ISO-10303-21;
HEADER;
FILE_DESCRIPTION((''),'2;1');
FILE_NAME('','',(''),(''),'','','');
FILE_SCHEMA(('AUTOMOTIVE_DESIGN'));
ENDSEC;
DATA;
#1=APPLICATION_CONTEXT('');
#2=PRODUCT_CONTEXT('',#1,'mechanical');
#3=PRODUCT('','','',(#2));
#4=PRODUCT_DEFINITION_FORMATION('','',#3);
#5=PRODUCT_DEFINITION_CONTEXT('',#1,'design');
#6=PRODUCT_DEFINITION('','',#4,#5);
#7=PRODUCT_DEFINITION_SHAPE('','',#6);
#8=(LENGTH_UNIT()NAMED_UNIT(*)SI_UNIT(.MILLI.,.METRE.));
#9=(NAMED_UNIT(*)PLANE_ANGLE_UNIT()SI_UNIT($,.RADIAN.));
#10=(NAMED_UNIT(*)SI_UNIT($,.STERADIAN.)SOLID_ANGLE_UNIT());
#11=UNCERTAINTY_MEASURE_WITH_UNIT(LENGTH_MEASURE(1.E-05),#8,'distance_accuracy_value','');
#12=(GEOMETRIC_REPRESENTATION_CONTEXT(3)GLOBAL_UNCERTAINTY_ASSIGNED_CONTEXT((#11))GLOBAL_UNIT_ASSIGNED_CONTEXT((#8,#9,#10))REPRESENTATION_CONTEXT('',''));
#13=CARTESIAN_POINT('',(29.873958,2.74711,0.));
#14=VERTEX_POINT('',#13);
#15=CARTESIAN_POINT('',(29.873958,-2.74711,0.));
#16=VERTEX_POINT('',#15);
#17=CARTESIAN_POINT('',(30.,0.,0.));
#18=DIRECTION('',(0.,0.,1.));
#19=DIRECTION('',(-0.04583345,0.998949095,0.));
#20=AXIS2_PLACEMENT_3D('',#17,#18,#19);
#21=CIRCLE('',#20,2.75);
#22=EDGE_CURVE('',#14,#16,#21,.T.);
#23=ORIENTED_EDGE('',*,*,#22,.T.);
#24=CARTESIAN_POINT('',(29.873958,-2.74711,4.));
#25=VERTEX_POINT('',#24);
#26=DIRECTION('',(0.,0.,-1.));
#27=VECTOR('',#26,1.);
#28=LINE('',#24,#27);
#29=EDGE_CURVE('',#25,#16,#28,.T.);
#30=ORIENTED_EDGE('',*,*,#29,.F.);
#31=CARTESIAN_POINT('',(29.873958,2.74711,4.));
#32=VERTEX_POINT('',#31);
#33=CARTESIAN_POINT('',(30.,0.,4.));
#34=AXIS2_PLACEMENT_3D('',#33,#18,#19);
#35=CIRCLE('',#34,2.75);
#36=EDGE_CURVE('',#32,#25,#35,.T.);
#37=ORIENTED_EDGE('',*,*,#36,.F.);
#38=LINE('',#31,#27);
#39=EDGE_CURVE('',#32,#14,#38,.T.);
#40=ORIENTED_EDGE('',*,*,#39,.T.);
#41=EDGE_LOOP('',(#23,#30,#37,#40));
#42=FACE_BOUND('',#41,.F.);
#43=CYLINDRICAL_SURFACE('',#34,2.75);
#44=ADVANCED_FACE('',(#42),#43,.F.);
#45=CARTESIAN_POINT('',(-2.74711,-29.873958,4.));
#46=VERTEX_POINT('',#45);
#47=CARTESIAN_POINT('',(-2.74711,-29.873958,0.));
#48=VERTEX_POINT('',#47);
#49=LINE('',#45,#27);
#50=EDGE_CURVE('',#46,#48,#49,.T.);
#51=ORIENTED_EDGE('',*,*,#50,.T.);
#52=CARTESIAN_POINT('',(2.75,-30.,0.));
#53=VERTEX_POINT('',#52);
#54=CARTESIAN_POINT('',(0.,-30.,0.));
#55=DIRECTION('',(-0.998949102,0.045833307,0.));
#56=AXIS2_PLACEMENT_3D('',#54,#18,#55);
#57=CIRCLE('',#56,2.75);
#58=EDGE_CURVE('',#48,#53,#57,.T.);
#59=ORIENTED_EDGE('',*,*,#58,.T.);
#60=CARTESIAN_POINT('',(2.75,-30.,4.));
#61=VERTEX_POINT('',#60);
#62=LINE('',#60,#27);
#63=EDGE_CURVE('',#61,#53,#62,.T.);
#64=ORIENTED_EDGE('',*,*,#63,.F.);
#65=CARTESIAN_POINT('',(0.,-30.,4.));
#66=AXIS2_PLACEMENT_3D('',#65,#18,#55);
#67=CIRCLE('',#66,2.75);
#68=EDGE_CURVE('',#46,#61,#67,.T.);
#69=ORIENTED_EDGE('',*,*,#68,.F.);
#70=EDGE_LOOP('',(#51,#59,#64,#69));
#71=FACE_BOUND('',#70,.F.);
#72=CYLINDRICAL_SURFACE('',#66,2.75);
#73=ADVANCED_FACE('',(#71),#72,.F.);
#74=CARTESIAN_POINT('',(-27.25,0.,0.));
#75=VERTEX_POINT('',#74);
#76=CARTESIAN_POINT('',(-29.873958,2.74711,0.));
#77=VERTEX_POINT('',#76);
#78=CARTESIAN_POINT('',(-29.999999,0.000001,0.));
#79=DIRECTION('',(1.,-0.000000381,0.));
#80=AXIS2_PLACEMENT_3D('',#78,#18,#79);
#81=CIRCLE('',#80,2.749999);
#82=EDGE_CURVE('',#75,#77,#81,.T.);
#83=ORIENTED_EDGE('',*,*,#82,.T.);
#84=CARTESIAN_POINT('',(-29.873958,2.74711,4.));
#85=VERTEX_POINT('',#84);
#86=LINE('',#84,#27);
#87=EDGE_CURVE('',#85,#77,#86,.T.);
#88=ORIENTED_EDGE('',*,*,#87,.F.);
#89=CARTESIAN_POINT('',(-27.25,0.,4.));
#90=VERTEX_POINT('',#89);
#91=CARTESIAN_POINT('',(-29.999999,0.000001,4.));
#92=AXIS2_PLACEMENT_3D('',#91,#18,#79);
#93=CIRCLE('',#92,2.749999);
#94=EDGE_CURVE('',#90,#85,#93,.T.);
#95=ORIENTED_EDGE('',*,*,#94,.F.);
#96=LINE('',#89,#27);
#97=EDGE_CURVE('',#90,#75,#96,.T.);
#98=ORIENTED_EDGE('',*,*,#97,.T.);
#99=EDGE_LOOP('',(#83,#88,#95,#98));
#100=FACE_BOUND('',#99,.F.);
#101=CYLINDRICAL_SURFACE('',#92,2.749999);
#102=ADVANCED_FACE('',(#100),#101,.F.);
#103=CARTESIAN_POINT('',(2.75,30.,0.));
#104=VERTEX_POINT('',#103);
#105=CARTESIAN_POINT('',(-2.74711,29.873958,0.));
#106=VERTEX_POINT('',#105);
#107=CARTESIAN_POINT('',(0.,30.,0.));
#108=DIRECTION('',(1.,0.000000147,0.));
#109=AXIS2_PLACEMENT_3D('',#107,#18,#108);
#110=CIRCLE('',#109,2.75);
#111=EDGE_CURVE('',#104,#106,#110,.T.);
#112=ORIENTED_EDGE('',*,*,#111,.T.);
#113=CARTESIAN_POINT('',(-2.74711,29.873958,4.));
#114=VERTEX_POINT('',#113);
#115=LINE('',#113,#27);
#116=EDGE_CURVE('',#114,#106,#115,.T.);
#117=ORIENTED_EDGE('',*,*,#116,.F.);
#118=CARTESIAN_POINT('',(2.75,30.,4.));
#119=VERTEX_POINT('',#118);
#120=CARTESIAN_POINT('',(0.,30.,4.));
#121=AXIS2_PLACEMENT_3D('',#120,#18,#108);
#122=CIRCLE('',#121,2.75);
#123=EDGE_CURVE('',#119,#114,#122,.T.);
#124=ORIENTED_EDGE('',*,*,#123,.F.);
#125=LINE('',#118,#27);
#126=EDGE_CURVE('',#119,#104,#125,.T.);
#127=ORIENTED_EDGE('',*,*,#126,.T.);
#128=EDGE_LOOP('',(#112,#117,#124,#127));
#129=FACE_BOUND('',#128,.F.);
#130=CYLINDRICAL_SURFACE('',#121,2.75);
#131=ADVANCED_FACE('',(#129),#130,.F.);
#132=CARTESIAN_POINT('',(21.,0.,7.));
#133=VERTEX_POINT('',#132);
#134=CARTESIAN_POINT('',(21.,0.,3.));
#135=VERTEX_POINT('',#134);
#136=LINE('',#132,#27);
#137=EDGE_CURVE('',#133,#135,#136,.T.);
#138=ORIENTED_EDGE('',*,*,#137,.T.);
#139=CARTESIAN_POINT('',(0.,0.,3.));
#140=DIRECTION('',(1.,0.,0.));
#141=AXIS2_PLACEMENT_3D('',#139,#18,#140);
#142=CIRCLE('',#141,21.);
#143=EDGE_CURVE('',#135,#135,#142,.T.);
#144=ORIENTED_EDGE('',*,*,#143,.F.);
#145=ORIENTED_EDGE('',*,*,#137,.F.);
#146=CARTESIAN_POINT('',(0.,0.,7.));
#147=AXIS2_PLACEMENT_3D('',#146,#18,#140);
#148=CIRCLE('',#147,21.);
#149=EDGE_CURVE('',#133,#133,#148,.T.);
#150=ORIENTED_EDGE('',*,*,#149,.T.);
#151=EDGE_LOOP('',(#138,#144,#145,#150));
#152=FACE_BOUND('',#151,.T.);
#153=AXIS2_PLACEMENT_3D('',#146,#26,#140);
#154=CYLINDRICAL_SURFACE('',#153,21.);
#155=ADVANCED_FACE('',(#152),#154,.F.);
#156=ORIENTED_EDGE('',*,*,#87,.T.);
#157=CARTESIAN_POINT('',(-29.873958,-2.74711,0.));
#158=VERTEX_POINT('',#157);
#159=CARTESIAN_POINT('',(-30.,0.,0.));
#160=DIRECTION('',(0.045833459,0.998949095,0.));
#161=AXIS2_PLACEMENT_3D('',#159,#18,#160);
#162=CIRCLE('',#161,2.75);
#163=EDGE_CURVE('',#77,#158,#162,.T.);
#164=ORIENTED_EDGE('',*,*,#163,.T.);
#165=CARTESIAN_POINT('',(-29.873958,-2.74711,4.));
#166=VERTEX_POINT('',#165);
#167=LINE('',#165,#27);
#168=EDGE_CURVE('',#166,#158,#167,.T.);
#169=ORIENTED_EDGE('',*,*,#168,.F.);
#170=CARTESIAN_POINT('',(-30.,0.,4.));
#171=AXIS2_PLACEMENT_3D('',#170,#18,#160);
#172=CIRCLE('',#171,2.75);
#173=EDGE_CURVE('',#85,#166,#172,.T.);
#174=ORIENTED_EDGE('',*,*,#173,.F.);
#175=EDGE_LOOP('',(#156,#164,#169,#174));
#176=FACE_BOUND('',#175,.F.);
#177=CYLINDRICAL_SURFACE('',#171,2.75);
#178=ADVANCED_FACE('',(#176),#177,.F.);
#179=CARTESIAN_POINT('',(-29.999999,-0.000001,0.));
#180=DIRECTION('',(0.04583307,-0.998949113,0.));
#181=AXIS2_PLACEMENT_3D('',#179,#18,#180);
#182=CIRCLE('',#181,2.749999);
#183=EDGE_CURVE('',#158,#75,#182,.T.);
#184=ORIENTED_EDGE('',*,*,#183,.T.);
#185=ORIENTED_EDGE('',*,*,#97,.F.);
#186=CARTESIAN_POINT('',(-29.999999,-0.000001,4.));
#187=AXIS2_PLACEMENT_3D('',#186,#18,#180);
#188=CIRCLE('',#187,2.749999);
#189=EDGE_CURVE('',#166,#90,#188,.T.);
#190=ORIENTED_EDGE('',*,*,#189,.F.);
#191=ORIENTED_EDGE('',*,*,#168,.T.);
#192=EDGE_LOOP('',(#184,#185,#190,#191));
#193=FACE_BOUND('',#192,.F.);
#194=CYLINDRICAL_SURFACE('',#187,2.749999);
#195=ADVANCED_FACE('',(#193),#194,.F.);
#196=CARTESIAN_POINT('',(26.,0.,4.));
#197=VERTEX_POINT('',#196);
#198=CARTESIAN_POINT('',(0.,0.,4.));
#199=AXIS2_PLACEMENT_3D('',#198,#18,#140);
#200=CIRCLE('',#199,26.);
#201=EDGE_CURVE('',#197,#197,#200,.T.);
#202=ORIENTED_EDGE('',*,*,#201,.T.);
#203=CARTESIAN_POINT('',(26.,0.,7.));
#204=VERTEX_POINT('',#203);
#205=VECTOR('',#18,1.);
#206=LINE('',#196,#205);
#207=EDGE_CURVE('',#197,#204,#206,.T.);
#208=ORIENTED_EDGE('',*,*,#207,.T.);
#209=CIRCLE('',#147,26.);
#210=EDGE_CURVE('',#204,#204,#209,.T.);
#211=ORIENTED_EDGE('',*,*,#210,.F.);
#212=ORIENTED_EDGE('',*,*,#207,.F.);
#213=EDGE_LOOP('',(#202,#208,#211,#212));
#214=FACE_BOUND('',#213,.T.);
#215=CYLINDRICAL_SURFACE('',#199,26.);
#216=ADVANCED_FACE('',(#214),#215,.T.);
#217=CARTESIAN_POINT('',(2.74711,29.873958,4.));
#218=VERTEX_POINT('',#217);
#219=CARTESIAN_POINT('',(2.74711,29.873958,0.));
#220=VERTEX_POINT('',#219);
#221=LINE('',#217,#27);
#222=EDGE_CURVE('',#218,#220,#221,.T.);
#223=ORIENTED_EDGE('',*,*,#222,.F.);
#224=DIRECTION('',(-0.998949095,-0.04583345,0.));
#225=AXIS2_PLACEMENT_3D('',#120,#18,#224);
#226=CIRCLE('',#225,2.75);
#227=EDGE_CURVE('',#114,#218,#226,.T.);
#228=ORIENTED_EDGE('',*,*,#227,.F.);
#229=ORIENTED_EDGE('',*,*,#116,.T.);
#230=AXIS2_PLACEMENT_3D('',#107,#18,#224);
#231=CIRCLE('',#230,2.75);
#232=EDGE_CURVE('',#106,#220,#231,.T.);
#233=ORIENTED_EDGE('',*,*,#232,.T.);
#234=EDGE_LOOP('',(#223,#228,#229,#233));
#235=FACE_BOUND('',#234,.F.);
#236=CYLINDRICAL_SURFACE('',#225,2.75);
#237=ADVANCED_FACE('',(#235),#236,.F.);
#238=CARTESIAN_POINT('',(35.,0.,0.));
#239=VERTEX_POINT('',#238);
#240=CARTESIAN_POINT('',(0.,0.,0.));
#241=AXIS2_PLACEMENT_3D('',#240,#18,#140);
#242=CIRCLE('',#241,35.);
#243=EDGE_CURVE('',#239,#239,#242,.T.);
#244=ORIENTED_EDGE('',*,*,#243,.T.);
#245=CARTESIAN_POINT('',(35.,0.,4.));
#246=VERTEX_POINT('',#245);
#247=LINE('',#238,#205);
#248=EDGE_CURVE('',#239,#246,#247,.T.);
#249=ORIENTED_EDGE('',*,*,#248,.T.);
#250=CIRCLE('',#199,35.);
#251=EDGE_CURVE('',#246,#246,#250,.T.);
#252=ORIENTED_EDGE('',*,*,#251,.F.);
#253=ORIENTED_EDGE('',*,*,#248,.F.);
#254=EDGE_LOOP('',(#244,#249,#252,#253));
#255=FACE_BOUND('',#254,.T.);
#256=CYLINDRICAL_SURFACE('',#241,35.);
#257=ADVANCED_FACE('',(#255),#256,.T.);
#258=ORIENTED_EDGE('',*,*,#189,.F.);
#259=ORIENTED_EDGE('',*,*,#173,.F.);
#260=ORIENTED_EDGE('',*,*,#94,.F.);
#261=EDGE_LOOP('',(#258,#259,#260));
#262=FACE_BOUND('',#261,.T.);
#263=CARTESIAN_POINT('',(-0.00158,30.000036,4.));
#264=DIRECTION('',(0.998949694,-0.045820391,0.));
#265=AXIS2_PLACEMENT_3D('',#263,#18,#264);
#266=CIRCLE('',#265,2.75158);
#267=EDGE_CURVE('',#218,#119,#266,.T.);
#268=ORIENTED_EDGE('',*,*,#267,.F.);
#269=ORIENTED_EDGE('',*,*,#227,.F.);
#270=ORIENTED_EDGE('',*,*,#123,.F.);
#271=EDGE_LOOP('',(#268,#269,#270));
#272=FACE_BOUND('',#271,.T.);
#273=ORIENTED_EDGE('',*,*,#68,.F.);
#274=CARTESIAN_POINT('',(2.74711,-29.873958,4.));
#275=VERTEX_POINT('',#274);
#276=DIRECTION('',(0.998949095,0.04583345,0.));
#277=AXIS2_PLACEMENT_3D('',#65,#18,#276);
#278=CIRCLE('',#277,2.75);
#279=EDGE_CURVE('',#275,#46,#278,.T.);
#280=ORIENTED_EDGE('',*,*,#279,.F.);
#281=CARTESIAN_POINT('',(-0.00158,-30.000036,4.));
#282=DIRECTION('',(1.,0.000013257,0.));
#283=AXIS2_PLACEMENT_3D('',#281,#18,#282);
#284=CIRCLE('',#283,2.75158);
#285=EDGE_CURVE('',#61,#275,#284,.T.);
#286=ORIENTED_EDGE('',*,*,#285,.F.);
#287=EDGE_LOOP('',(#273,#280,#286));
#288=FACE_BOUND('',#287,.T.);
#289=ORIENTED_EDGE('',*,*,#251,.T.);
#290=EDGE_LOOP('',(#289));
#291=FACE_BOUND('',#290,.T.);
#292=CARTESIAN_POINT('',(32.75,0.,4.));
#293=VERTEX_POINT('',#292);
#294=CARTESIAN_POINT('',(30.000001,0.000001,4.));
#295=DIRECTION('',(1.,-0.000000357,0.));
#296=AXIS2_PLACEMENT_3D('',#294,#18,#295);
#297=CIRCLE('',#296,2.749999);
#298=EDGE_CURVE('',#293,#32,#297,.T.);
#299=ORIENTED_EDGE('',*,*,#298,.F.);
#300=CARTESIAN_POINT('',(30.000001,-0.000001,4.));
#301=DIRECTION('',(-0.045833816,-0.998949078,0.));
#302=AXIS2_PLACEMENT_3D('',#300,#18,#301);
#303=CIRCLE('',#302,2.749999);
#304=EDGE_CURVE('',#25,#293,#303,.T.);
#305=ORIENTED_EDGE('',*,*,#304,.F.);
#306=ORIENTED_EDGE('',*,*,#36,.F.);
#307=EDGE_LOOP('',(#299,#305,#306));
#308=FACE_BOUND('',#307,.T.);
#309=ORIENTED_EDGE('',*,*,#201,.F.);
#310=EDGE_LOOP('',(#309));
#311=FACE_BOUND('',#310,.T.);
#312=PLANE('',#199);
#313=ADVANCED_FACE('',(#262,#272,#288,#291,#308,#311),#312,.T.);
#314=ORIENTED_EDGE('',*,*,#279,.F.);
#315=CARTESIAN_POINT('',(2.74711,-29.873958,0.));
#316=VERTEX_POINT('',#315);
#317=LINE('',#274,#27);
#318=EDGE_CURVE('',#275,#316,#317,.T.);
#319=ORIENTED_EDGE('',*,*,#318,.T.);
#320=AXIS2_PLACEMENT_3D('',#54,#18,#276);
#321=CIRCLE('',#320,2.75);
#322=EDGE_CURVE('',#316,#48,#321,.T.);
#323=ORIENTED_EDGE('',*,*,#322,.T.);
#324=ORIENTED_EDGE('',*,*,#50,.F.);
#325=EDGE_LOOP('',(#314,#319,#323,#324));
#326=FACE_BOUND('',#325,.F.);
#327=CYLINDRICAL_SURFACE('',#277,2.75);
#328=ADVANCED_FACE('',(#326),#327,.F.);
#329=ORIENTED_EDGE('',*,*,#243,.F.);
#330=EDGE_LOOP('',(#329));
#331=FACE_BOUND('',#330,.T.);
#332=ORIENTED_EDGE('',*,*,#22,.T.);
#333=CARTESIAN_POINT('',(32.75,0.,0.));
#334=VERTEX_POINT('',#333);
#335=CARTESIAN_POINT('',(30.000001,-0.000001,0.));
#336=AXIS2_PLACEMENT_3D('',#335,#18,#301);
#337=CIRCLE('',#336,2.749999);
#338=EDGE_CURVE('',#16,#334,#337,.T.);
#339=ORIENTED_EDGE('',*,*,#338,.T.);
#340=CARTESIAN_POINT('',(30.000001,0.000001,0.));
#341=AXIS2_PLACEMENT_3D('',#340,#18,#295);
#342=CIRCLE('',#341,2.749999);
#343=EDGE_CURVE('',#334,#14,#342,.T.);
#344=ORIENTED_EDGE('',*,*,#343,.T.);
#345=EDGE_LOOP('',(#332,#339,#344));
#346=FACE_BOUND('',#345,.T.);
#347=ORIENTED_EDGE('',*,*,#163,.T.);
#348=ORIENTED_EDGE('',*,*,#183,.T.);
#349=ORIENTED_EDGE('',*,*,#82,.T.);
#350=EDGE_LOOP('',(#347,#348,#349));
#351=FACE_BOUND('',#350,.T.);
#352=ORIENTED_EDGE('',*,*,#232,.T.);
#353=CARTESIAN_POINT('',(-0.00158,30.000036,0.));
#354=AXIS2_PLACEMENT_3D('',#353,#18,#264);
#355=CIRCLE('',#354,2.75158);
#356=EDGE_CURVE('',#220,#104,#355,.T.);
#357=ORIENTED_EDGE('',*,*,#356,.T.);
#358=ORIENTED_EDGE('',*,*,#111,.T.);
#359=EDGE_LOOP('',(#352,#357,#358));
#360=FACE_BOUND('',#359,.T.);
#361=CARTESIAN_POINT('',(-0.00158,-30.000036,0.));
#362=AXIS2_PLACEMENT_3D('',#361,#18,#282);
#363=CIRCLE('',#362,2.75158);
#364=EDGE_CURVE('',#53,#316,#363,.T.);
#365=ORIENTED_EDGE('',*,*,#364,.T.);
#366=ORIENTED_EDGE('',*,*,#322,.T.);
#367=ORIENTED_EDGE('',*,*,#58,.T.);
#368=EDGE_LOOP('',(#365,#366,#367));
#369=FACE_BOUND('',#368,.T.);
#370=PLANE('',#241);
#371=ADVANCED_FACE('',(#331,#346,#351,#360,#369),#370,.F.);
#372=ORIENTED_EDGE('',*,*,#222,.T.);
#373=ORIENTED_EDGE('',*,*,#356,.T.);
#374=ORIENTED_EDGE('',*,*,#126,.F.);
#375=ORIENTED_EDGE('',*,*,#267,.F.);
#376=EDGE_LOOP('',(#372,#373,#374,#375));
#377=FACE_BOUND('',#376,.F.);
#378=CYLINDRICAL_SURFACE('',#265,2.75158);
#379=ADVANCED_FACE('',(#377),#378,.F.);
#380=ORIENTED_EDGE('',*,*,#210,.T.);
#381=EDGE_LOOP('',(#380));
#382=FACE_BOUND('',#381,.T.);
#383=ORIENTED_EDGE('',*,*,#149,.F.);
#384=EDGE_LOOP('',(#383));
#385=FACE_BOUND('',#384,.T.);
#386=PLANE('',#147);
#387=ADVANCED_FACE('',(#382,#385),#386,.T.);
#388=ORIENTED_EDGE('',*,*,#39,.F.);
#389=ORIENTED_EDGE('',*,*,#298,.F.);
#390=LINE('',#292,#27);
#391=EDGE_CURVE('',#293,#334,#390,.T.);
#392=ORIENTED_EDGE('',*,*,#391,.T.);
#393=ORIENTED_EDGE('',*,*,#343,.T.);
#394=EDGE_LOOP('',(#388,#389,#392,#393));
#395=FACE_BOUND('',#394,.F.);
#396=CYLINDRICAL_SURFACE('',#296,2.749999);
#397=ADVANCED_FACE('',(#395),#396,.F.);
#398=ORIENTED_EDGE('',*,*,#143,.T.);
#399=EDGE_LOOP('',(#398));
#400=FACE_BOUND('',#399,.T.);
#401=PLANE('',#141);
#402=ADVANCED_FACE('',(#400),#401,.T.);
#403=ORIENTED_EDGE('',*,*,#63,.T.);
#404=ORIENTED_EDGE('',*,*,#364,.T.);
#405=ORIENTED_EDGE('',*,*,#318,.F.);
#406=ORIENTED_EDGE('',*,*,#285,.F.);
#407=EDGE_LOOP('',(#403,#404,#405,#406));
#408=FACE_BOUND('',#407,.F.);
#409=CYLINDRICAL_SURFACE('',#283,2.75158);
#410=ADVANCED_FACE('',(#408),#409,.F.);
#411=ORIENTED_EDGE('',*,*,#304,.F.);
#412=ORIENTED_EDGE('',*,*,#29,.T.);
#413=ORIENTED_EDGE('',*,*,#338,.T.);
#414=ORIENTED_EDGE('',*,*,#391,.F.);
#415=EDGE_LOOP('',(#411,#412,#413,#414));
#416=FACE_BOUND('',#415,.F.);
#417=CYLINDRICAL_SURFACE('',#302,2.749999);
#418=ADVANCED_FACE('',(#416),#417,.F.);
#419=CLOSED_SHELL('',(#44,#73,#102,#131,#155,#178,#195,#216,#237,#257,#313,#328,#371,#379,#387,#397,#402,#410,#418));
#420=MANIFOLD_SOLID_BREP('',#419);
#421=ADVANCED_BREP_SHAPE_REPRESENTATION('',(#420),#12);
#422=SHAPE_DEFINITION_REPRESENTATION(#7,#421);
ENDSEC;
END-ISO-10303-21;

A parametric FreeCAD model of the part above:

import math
import FreeCAD as App
import Part
import Sketcher
from FreeCAD import Vector


def add_polygon(sketch, points):
    """Adds a closed chain of lines whose ends are joined by coincident constraints."""
    first, n = sketch.GeometryCount, len(points)
    for a, b in zip(points, points[1:] + points[:1]):
        sketch.addGeometry(Part.LineSegment(App.Vector(*a, 0), App.Vector(*b, 0)), False)
    for i in range(n):
        sketch.addConstraint(Sketcher.Constraint("Coincident", first + i, 2, first + (i + 1) % n, 1))

doc = App.newDocument("Part")
params = doc.addObject("Spreadsheet::Sheet", "Params")
for row, (alias, value) in enumerate([
    ("sketch1_width", "35 mm"),
    ("sketch1_width2", "9 mm"),
    ("sketch1_width3", "5 mm"),
    ("sketch1_height", "3 mm"),
    ("sketch1_height2", "4 mm"),
    ("revolution_angle", "360 deg"),
    ("sketch2_radius", "2.75 mm"),
    ("pocket1_length", "4 mm"),
], start=1):
    params.set(f"A{row}", alias)
    params.set(f"B{row}", "=" + value)
    params.setAlias(f"B{row}", alias)

body = doc.addObject("PartDesign::Body", "Body")

# Sketch on XZ plane
sketch1 = doc.addObject("Sketcher::SketchObject", "Sketch")
body.addObject(sketch1)
sketch1.AttachmentSupport = (doc.XZ_Plane, [""])
sketch1.MapMode = "FlatFace"
add_polygon(sketch1, [(0, 3), (0, 0), (35, 0), (35, 4), (26, 4), (26, 7), (21, 7), (21, 3)])  # lines 0-7
sketch1.addConstraint([
    Sketcher.Constraint("Vertical", 0),
    Sketcher.Constraint("Horizontal", 1),
    Sketcher.Constraint("Vertical", 2),
    Sketcher.Constraint("Horizontal", 3),
    Sketcher.Constraint("Vertical", 4),
    Sketcher.Constraint("Horizontal", 5),
    Sketcher.Constraint("Vertical", 6),
    Sketcher.Constraint("Horizontal", 7),
    Sketcher.Constraint("Coincident", 0, 2, -1, 1),
    Sketcher.Constraint("Equal", 0, 4),
    Sketcher.Constraint("DistanceX", 1, 1, 1, 2, 35.0),
    Sketcher.Constraint("DistanceX", 3, 2, 3, 1, 9.0),
    Sketcher.Constraint("DistanceX", 5, 2, 5, 1, 5.0),
    Sketcher.Constraint("DistanceY", 0, 2, 0, 1, 3.0),
    Sketcher.Constraint("DistanceY", 2, 1, 2, 2, 4.0),
])
sketch1.setExpression("Constraints[18]", "Params.sketch1_width")
sketch1.setExpression("Constraints[19]", "Params.sketch1_width2")
sketch1.setExpression("Constraints[20]", "Params.sketch1_width3")
sketch1.setExpression("Constraints[21]", "Params.sketch1_height")
sketch1.setExpression("Constraints[22]", "Params.sketch1_height2")
revolution = doc.addObject("PartDesign::Revolution", "Revolution")
body.addObject(revolution)
revolution.Profile = sketch1
revolution.ReferenceAxis = (sketch1, ["V_Axis"])
revolution.setExpression("Angle", "Params.revolution_angle")

# Sketch on XY plane
sketch2 = doc.addObject("Sketcher::SketchObject", "Sketch001")
body.addObject(sketch2)
sketch2.AttachmentSupport = (doc.XY_Plane, [""])
sketch2.MapMode = "FlatFace"
sketch2.AttachmentOffset = App.Placement(Vector(0, 0, 4), App.Rotation())
sketch2.addGeometry([
    Part.ArcOfCircle(Part.Circle(Vector(0, 30, 0), Vector(0, 0, 1), 2.75), math.radians(0.000008), math.radians(182.626975)),  # 0
    Part.ArcOfCircle(Part.Circle(Vector(0, 30, 0), Vector(0, 0, 1), 2.75), math.radians(-177.373016), math.radians(-2.626984)),  # 1
    Part.ArcOfCircle(Part.Circle(Vector(-0.00158, 30.000036, 0), Vector(0, 0, 1), 2.75158), math.radians(-2.626235), math.radians(-0.00076)),  # 2
    Part.ArcOfCircle(Part.Circle(Vector(-29.999999, 0.000001, 0), Vector(0, 0, 1), 2.749999), math.radians(-0.000022), math.radians(87.373038)),  # 3
    Part.ArcOfCircle(Part.Circle(Vector(-30, 0, 0), Vector(0, 0, 1), 2.75), math.radians(87.373016), math.radians(272.626984)),  # 4
    Part.ArcOfCircle(Part.Circle(Vector(-29.999999, -0.000001, 0), Vector(0, 0, 1), 2.749999), math.radians(-87.373038), math.radians(0.000022)),  # 5
    Part.ArcOfCircle(Part.Circle(Vector(0, -30, 0), Vector(0, 0, 1), 2.75), math.radians(2.626984), math.radians(177.373016)),  # 6
    Part.ArcOfCircle(Part.Circle(Vector(0, -30, 0), Vector(0, 0, 1), 2.75), math.radians(177.373025), math.radians(359.999992)),  # 7
    Part.ArcOfCircle(Part.Circle(Vector(-0.00158, -30.000036, 0), Vector(0, 0, 1), 2.75158), math.radians(0.00076), math.radians(2.626235)),  # 8
    Part.ArcOfCircle(Part.Circle(Vector(30.000001, 0.000001, 0), Vector(0, 0, 1), 2.749999), math.radians(-0.00002), math.radians(92.627005)),  # 9
    Part.ArcOfCircle(Part.Circle(Vector(30, 0, 0), Vector(0, 0, 1), 2.75), math.radians(92.626984), math.radians(267.373016)),  # 10
    Part.ArcOfCircle(Part.Circle(Vector(30.000001, -0.000001, 0), Vector(0, 0, 1), 2.749999), math.radians(-92.627005), math.radians(0.00002)),  # 11
], False)
sketch2.addConstraint([
    Sketcher.Constraint("Tangent", 0, 2, 1, 1),
    Sketcher.Constraint("Coincident", 1, 2, 2, 1),
    Sketcher.Constraint("Coincident", 2, 2, 0, 1),
    Sketcher.Constraint("Tangent", 3, 2, 4, 1),
    Sketcher.Constraint("Tangent", 4, 2, 5, 1),
    Sketcher.Constraint("Tangent", 5, 2, 3, 1),
    Sketcher.Constraint("Tangent", 6, 2, 7, 1),
    Sketcher.Constraint("Coincident", 7, 2, 8, 1),
    Sketcher.Constraint("Coincident", 8, 2, 6, 1),
    Sketcher.Constraint("Tangent", 9, 2, 10, 1),
    Sketcher.Constraint("Tangent", 10, 2, 11, 1),
    Sketcher.Constraint("Tangent", 11, 2, 9, 1),
    Sketcher.Constraint("Equal", 0, 1),
    Sketcher.Constraint("Equal", 1, 3),
    Sketcher.Constraint("Equal", 5, 6),
    Sketcher.Constraint("Equal", 6, 7),
    Sketcher.Constraint("Equal", 2, 8),
    Sketcher.Constraint("Equal", 7, 9),
    Sketcher.Constraint("Symmetric", 0, 3, 6, 3, -1, 1),
    Sketcher.Constraint("Symmetric", 3, 3, 9, 3, -1, 1),
    Sketcher.Constraint("Symmetric", 0, 2, 1, 2, -2),
    Sketcher.Constraint("Symmetric", 3, 2, 9, 2, -2),
    Sketcher.Constraint("PointOnObject", 5, 2, -1),
    Sketcher.Constraint("PointOnObject", 11, 2, -1),
    Sketcher.Constraint("Horizontal", 1, 3, 2, 2),
    Sketcher.Constraint("Horizontal", 6, 3, 7, 2),
    Sketcher.Constraint("Horizontal", 6, 2, 8, 2),
    Sketcher.Constraint("Horizontal", 4, 2, 10, 2),
    Sketcher.Constraint("Vertical", 3, 2, 4, 2),
    Sketcher.Constraint("Vertical", 0, 2, 6, 2),
    Sketcher.Constraint("Radius", 0, 2.75),
    Sketcher.Constraint("DistanceY", -1, 1, 0, 3, 30.0),
    Sketcher.Constraint("DistanceX", 3, 3, -1, 1, 29.999999),
    Sketcher.Constraint("Radius", 2, 2.75158),
    Sketcher.Constraint("DistanceX", 0, 2, -1, 1, 2.74711),
    Sketcher.Constraint("DistanceY", -1, 1, 3, 2, 2.74711),
])
sketch2.setExpression("Constraints[30]", "Params.sketch2_radius")
pocket1 = doc.addObject("PartDesign::Pocket", "Pocket")
body.addObject(pocket1)
pocket1.Profile = sketch2
pocket1.setExpression("Length", "Params.pocket1_length")

doc.recompute()
